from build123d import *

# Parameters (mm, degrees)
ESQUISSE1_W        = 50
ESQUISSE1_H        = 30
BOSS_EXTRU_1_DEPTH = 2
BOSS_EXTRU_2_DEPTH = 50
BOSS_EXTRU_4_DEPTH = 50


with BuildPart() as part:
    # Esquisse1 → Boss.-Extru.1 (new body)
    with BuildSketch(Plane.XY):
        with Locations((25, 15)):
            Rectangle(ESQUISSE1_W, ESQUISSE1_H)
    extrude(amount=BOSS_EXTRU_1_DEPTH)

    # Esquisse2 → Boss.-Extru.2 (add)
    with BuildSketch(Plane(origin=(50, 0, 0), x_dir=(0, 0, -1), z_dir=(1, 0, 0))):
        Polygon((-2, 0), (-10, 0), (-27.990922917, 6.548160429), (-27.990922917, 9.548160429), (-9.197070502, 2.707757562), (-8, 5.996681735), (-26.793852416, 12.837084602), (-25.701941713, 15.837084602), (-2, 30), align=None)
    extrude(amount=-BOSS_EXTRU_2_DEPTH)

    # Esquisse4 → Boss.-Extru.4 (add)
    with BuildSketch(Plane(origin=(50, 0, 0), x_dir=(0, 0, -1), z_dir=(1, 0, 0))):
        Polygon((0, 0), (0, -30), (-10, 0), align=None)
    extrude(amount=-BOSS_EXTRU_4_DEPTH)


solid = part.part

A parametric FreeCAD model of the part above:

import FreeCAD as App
import Part
import Sketcher
Q = App.Units.Quantity

doc = App.newDocument("Part")
params = doc.addObject("Spreadsheet::Sheet", "Params")
for row, (alias, value) in enumerate([
    ("sketch1_width", "50 mm"),
    ("sketch1_height", "30 mm"),
    ("pad1_length", "2 mm"),
    ("sketch2_width", "30 mm"),
    ("sketch2_width2", "3 mm"),
    ("sketch2_height", "8 mm"),
    ("sketch2_length", "20 mm"),
    ("sketch2_length2", "3.5 mm"),
    ("pad2_length", "50 mm"),
    ("sketch3_width", "30 mm"),
    ("sketch3_height", "10 mm"),
    ("pad3_length", "50 mm"),
], start=1):
    params.set(f"A{row}", alias)
    params.set(f"B{row}", "=" + value)
    params.setAlias(f"B{row}", alias)

body = doc.addObject("PartDesign::Body", "Body")

# Sketch on XY plane
sketch1 = doc.addObject("Sketcher::SketchObject", "Sketch")
body.addObject(sketch1)
sketch1.AttachmentSupport = (doc.XY_Plane, [""])
sketch1.MapMode = "FlatFace"
sketch1.addGeometry([
    Part.LineSegment(App.Vector(0, 30, 0), App.Vector(0, 0, 0)),
    Part.LineSegment(App.Vector(0, 0, 0), App.Vector(50, 0, 0)),
    Part.LineSegment(App.Vector(50, 0, 0), App.Vector(50, 30, 0)),
    Part.LineSegment(App.Vector(50, 30, 0), App.Vector(0, 30, 0)),
], False)
sketch1.addConstraint([
    Sketcher.Constraint("Coincident", 0, 2, 1, 1),
    Sketcher.Constraint("Coincident", 1, 2, 2, 1),
    Sketcher.Constraint("Coincident", 2, 2, 3, 1),
    Sketcher.Constraint("Coincident", 3, 2, 0, 1),
    Sketcher.Constraint("Vertical", 0),
    Sketcher.Constraint("Horizontal", 1),
    Sketcher.Constraint("Vertical", 2),
    Sketcher.Constraint("Horizontal", 3),
    Sketcher.Constraint("Coincident", 0, 2, -1, 1),
    Sketcher.Constraint("DistanceX", 1, 1, 1, 2, 50.0),
    Sketcher.Constraint("DistanceY", 0, 2, 0, 1, 30.0),
])
sketch1.setExpression("Constraints[9]", "Params.sketch1_width")
sketch1.setExpression("Constraints[10]", "Params.sketch1_height")
pad1 = doc.addObject("PartDesign::Pad", "Pad")
body.addObject(pad1)
pad1.Profile = sketch1
pad1.setExpression("Length", "Params.pad1_length")

# Sketch on YZ plane
sketch2 = doc.addObject("Sketcher::SketchObject", "Sketch001")
body.addObject(sketch2)
sketch2.AttachmentSupport = (doc.YZ_Plane, [""])
sketch2.MapMode = "FlatFace"
sketch2.AttachmentOffset = App.Placement(App.Vector(0, 0, 50), App.Rotation())
sketch2.addGeometry([
    Part.LineSegment(App.Vector(0, 10, 0), App.Vector(0, 2, 0)),  # 0
    Part.LineSegment(App.Vector(0, 2, 0), App.Vector(30, 2, 0)),  # 1
    Part.LineSegment(App.Vector(30, 2, 0), App.Vector(15.8, 25.7, 0)),  # 2
    Part.LineSegment(App.Vector(15.8, 25.7, 0), App.Vector(12.8, 26.8, 0)),  # 3
    Part.LineSegment(App.Vector(12.8, 26.8, 0), App.Vector(6, 8, 0)),  # 4
    Part.LineSegment(App.Vector(6, 8, 0), App.Vector(2.7, 9.2, 0)),  # 5
    Part.LineSegment(App.Vector(2.7, 9.2, 0), App.Vector(9.5, 28, 0)),  # 6
    Part.LineSegment(App.Vector(9.5, 28, 0), App.Vector(6.5, 28, 0)),  # 7
    Part.LineSegment(App.Vector(6.5, 28, 0), App.Vector(0, 10, 0)),  # 8
], False)
sketch2.addConstraint([
    Sketcher.Constraint("Coincident", 0, 2, 1, 1),
    Sketcher.Constraint("Coincident", 1, 2, 2, 1),
    Sketcher.Constraint("Coincident", 2, 2, 3, 1),
    Sketcher.Constraint("Coincident", 3, 2, 4, 1),
    Sketcher.Constraint("Coincident", 4, 2, 5, 1),
    Sketcher.Constraint("Coincident", 5, 2, 6, 1),
    Sketcher.Constraint("Coincident", 6, 2, 7, 1),
    Sketcher.Constraint("Coincident", 7, 2, 8, 1),
    Sketcher.Constraint("Coincident", 8, 2, 0, 1),
    Sketcher.Constraint("Vertical", 0),
    Sketcher.Constraint("Horizontal", 1),
    Sketcher.Constraint("Horizontal", 7),
    Sketcher.Constraint("PointOnObject", 0, 2, -2),
    Sketcher.Constraint("Perpendicular", 3, 4),
    Sketcher.Constraint("Perpendicular", 4, 5),
    Sketcher.Constraint("Perpendicular", 5, 6),
    Sketcher.Constraint("Parallel", 6, 8),
    Sketcher.Constraint("Equal", 4, 6),
    Sketcher.Constraint("DistanceX", 1, 1, 1, 2, 30.0),
    Sketcher.Constraint("DistanceX", 7, 2, 7, 1, 3.0),
    Sketcher.Constraint("DistanceY", 0, 2, 0, 1, 8.0),
    Sketcher.Constraint("Angle", 3, Q("160 deg")),
    Sketcher.Constraint("Distance", 4, 20.0),
    Sketcher.Constraint("DistanceY", -1, 1, 0, 2, 2.0),
    Sketcher.Constraint("DistanceY", -1, 1, 4, 2, 8.0),
    Sketcher.Constraint("DistanceX", 3, 2, 2, 2, 3.0),
    Sketcher.Constraint("Distance", 5, 3.5),
])
sketch2.setExpression("Constraints[18]", "Params.sketch2_width")
sketch2.setExpression("Constraints[19]", "Params.sketch2_width2")
sketch2.setExpression("Constraints[20]", "Params.sketch2_height")
sketch2.setExpression("Constraints[22]", "Params.sketch2_length")
sketch2.setExpression("Constraints[26]", "Params.sketch2_length2")
pad2 = doc.addObject("PartDesign::Pad", "Pad001")
body.addObject(pad2)
pad2.Profile = sketch2
pad2.setExpression("Length", "Params.pad2_length")
pad2.Reversed = True

# Sketch on YZ plane
sketch3 = doc.addObject("Sketcher::SketchObject", "Sketch002")
body.addObject(sketch3)
sketch3.AttachmentSupport = (doc.YZ_Plane, [""])
sketch3.MapMode = "FlatFace"
sketch3.AttachmentOffset = App.Placement(App.Vector(0, 0, 50), App.Rotation())
sketch3.addGeometry([
    Part.LineSegment(App.Vector(-30, 0, 0), App.Vector(0, 0, 0)),
    Part.LineSegment(App.Vector(0, 0, 0), App.Vector(0, 10, 0)),
    Part.LineSegment(App.Vector(0, 10, 0), App.Vector(-30, 0, 0)),
], False)
sketch3.addConstraint([
    Sketcher.Constraint("Coincident", 0, 2, 1, 1),
    Sketcher.Constraint("Coincident", 1, 2, 2, 1),
    Sketcher.Constraint("Coincident", 2, 2, 0, 1),
    Sketcher.Constraint("Horizontal", 0),
    Sketcher.Constraint("Vertical", 1),
    Sketcher.Constraint("Coincident", 0, 2, -1, 1),
    Sketcher.Constraint("DistanceX", 0, 1, 0, 2, 30.0),
    Sketcher.Constraint("DistanceY", 1, 1, 1, 2, 10.0),
])
sketch3.setExpression("Constraints[6]", "Params.sketch3_width")
sketch3.setExpression("Constraints[7]", "Params.sketch3_height")
pad3 = doc.addObject("PartDesign::Pad", "Pad002")
body.addObject(pad3)
pad3.Profile = sketch3
pad3.setExpression("Length", "Params.pad3_length")
pad3.Reversed = True

doc.recompute()
